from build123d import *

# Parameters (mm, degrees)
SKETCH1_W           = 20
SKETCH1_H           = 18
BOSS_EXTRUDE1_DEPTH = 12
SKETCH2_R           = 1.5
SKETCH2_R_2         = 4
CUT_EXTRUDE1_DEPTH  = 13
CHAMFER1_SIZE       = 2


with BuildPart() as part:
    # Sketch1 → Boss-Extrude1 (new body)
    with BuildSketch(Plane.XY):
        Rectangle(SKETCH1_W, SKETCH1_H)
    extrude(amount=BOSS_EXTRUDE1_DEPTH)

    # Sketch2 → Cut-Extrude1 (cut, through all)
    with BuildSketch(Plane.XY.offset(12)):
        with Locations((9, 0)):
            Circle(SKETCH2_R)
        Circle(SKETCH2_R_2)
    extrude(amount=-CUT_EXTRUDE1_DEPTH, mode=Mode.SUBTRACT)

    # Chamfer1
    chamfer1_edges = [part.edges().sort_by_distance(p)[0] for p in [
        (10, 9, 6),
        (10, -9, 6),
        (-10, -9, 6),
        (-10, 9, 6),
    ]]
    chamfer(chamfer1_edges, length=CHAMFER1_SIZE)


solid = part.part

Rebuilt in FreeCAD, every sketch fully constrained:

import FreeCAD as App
import Part
import Sketcher
from FreeCAD import Vector


def edges_at(feature, points):
    """Names of the edges that pass closest to the given points."""
    edges = feature.Shape.Edges
    near = lambda p: min(range(len(edges)), key=lambda i: edges[i].distToShape(Part.Vertex(*p))[0])
    return sorted({f"Edge{near(p) + 1}" for p in points})

doc = App.newDocument("Part")
body = doc.addObject("PartDesign::Body", "Body")

sketch1 = body.newObject("Sketcher::SketchObject", "Sketch")
sketch1.AttachmentSupport = (doc.getObject("XY_Plane"), [""])
sketch1.MapMode = "FlatFace"
sketch1.addGeometry(Part.LineSegment(Vector(-10, 9, 0), Vector(-10, -9, 0)), False)
sketch1.addGeometry(Part.LineSegment(Vector(-10, -9, 0), Vector(10, -9, 0)), False)
sketch1.addGeometry(Part.LineSegment(Vector(10, -9, 0), Vector(10, 9, 0)), False)
sketch1.addGeometry(Part.LineSegment(Vector(10, 9, 0), Vector(-10, 9, 0)), False)
sketch1.addConstraint(Sketcher.Constraint("Coincident", 0, 2, 1, 1))
sketch1.addConstraint(Sketcher.Constraint("Coincident", 1, 2, 2, 1))
sketch1.addConstraint(Sketcher.Constraint("Coincident", 2, 2, 3, 1))
sketch1.addConstraint(Sketcher.Constraint("Coincident", 3, 2, 0, 1))
sketch1.addConstraint(Sketcher.Constraint("Vertical", 0))
sketch1.addConstraint(Sketcher.Constraint("Horizontal", 1))
sketch1.addConstraint(Sketcher.Constraint("Vertical", 2))
sketch1.addConstraint(Sketcher.Constraint("Horizontal", 3))
sketch1.addConstraint(Sketcher.Constraint("Symmetric", 0, 2, 2, 2, -1, 1))
sketch1.addConstraint(Sketcher.Constraint("DistanceX", 1, 1, 1, 2, 20.0))
sketch1.addConstraint(Sketcher.Constraint("DistanceY", 0, 2, 0, 1, 18.0))
pad1 = body.newObject("PartDesign::Pad", "Pad")
pad1.Profile = sketch1
pad1.Length = 12

sketch2 = body.newObject("Sketcher::SketchObject", "Sketch001")
sketch2.AttachmentSupport = (doc.getObject("XY_Plane"), [""])
sketch2.MapMode = "FlatFace"
sketch2.AttachmentOffset = App.Placement(Vector(0, 0, 12), App.Rotation())
sketch2.addGeometry(Part.Circle(Vector(9, 0, 0), Vector(0, 0, 1), 1.5), False)
sketch2.addGeometry(Part.Circle(Vector(0, 0, 0), Vector(0, 0, 1), 4), False)
sketch2.addConstraint(Sketcher.Constraint("Coincident", 1, 3, -1, 1))
sketch2.addConstraint(Sketcher.Constraint("PointOnObject", 0, 3, -1))
sketch2.addConstraint(Sketcher.Constraint("Diameter", 0, 3.0))
sketch2.addConstraint(Sketcher.Constraint("Diameter", 1, 8.0))
sketch2.addConstraint(Sketcher.Constraint("DistanceX", -1, 1, 0, 3, 9.0))
pocket1 = body.newObject("PartDesign::Pocket", "Pocket")
pocket1.Profile = sketch2
pocket1.Type = "ThroughAll"
doc.recompute()

chamfer = body.newObject("PartDesign::Chamfer", "Chamfer")
chamfer.Base = (pocket1, edges_at(pocket1, [
    (10, 9, 6),
    (10, -9, 6),
    (-10, -9, 6),
    (-10, 9, 6),
]))
chamfer.Size = 2

doc.recompute()
